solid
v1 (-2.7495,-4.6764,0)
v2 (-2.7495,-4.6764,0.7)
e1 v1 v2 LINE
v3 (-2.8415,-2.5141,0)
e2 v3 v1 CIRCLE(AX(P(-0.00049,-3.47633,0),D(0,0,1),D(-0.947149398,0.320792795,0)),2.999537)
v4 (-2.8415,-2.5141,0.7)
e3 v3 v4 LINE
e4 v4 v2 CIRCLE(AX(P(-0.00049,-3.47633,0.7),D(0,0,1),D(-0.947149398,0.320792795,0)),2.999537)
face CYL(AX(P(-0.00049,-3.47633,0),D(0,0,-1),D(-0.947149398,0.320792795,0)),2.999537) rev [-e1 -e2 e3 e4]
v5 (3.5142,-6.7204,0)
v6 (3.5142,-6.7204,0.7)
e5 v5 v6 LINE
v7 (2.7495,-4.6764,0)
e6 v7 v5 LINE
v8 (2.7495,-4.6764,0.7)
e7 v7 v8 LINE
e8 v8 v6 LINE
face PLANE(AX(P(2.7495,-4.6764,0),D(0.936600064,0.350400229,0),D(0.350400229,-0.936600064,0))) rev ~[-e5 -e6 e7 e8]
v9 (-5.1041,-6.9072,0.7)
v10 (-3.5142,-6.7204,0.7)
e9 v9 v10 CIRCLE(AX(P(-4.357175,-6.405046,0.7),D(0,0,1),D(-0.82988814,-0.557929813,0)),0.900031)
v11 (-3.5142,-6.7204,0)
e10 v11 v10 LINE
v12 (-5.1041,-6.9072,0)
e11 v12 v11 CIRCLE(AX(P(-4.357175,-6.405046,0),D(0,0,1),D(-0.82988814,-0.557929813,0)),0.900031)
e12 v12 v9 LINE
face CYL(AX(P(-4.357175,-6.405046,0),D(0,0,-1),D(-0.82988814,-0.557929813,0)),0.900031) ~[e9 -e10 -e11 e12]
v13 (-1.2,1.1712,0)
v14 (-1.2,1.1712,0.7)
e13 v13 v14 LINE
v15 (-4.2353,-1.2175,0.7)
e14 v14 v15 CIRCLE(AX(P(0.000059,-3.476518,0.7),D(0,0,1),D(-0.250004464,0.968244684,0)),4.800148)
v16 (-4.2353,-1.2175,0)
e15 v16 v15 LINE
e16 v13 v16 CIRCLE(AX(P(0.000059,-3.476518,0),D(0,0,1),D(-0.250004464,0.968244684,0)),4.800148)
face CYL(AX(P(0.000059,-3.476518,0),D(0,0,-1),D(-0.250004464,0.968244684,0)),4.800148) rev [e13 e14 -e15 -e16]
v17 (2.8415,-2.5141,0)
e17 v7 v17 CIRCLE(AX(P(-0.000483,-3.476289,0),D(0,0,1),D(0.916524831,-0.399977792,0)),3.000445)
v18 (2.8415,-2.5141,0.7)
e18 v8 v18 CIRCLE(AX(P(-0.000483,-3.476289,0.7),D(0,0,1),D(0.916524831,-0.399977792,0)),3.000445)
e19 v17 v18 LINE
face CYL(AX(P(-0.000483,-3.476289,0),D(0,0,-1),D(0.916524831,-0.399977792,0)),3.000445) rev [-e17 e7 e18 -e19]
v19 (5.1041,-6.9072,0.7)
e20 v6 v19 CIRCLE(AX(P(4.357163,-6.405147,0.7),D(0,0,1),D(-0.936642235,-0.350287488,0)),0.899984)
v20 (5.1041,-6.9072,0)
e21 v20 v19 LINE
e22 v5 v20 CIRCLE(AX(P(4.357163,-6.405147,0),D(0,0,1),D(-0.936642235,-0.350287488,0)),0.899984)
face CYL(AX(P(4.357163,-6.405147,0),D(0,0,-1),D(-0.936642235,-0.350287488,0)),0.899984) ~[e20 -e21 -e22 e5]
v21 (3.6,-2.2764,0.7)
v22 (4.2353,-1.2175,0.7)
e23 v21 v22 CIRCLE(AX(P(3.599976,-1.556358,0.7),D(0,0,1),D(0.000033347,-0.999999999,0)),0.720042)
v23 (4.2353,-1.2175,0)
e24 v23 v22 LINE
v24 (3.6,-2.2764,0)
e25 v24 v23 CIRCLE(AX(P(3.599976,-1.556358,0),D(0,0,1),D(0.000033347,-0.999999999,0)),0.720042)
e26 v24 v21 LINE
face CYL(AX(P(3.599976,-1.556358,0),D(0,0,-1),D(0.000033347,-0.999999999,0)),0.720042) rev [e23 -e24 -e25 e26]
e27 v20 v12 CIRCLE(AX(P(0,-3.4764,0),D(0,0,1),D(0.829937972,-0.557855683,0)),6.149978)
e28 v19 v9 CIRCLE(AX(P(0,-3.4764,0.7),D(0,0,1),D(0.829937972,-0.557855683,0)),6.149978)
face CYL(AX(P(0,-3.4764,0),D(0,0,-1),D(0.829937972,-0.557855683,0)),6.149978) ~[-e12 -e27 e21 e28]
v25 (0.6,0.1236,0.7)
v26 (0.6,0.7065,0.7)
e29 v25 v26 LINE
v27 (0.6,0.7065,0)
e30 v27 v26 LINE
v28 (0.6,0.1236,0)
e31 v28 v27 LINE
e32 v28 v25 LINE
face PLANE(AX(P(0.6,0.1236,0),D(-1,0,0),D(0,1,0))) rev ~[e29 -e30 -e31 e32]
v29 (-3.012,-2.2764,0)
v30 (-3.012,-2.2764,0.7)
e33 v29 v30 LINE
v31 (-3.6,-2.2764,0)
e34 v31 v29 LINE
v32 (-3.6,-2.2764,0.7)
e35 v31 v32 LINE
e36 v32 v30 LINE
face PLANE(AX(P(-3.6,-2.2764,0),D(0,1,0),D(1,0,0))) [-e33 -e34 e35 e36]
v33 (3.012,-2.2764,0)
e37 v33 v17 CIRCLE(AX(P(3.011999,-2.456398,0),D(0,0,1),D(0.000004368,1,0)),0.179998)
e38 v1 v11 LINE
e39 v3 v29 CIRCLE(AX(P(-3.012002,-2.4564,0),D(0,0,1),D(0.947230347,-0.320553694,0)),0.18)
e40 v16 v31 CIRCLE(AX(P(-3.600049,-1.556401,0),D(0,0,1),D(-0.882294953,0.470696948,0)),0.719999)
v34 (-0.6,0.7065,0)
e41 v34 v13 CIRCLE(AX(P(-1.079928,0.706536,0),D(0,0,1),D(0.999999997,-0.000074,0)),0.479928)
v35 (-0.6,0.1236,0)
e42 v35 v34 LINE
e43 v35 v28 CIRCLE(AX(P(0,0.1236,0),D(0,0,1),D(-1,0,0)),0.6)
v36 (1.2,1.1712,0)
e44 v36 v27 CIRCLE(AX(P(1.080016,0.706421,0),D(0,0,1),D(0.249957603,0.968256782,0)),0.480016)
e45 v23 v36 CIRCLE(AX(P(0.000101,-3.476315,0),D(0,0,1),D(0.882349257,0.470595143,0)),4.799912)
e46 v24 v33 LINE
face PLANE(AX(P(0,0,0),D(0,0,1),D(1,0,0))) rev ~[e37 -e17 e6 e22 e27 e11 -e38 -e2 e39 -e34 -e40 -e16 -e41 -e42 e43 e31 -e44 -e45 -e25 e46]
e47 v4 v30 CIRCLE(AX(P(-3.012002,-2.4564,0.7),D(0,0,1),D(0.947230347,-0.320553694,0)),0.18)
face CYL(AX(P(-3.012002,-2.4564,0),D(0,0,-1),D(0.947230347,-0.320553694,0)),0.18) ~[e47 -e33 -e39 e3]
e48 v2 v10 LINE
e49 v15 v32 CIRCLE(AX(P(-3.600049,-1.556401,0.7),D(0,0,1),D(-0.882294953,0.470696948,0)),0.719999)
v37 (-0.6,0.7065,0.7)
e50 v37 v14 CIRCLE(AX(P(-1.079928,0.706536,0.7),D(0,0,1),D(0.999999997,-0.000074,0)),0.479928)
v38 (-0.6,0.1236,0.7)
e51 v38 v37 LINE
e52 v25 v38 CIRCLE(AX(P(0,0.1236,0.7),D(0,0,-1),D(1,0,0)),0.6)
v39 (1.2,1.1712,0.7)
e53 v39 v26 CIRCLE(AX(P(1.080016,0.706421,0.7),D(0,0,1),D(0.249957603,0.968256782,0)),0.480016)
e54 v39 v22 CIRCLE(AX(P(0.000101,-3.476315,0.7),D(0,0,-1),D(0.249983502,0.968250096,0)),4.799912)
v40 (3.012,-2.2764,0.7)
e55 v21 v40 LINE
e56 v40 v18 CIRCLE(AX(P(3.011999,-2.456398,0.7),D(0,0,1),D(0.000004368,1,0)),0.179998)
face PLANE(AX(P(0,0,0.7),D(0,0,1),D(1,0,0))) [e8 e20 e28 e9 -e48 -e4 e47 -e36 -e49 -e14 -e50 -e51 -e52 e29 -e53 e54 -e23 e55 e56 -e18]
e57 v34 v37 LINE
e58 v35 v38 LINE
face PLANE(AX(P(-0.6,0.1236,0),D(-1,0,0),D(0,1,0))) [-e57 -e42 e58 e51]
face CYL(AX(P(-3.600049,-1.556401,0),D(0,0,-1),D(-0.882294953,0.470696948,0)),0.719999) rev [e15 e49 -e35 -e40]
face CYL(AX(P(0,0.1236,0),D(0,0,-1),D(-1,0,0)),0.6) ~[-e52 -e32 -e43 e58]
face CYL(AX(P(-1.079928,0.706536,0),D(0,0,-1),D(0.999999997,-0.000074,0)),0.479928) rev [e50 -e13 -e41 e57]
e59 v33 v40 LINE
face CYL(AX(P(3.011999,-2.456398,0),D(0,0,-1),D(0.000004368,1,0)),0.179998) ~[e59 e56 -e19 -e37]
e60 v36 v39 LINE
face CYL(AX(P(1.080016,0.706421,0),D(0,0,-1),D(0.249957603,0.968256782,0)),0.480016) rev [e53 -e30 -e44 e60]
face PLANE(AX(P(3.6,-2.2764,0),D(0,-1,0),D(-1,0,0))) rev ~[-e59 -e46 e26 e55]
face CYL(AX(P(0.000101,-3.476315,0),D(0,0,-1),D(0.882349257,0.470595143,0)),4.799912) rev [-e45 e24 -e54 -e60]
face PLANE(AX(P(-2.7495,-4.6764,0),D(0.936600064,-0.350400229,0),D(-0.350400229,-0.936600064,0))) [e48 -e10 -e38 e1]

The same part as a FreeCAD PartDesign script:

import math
import FreeCAD as App
import Part
import Sketcher

V = App.Vector

doc = App.newDocument("Part")
params = doc.addObject("Spreadsheet::Sheet", "Params")
for row, (alias, value) in enumerate([
    ("sketch1_radius", "3 mm"),
    ("sketch1_radius2", "3 mm"),
    ("sketch1_radius3", "0.6 mm"),
    ("sketch1_radius4", "4.8 mm"),
    ("sketch1_radius5", "0.9 mm"),
    ("pad1_length", "0.7 mm"),
], start=1):
    params.set(f"A{row}", alias)
    params.set(f"B{row}", "=" + value)
    params.setAlias(f"B{row}", alias)

body = doc.addObject("PartDesign::Body", "Body")

# Sketch on XY plane
sketch1 = body.newObject("Sketcher::SketchObject", "Sketch")
sketch1.AttachmentSupport = (doc.getObject("XY_Plane"), [""])
sketch1.MapMode = "FlatFace"
sketch1.addGeometry([
    Part.ArcOfCircle(Part.Circle(V(0, 0.1236, 0), V(0, 0, 1), 0.6), math.radians(180), math.radians(360)),  # 0
    Part.LineSegment(V(0.6, 0.1236, 0), V(0.6, 0.7065, 0)),  # 1
    Part.ArcOfCircle(Part.Circle(V(1.08, 0.7065, 0), V(0, 0, 1), 0.479944), math.radians(75.520757), math.radians(180)),  # 2
    Part.ArcOfCircle(Part.Circle(V(0, -3.4764, 0), V(0, 0, 1), 4.800019), math.radians(28.073259), math.radians(75.522547)),  # 3
    Part.ArcOfCircle(Part.Circle(V(3.6, -1.5564, 0), V(0, 0, 1), 0.72), math.radians(-90), math.radians(28.077636)),  # 4
    Part.LineSegment(V(3.6, -2.2764, 0), V(3.012, -2.2764, 0)),  # 5
    Part.ArcOfCircle(Part.Circle(V(3.012, -2.4564, 0), V(0, 0, 1), 0.18), math.radians(90), math.radians(198.696663)),  # 6
    Part.ArcOfCircle(Part.Circle(V(0, -3.4764, 0), V(0, 0, 1), 3.000024), math.radians(-23.578525), math.radians(18.709141)),  # 7
    Part.LineSegment(V(2.7495, -4.6764, 0), V(3.5142, -6.7204, 0)),  # 8
    Part.ArcOfCircle(Part.Circle(V(4.3572, -6.4051, 0), V(0, 0, 1), 0.900035), math.radians(-159.49313), math.radians(-33.910781)),  # 9
    Part.ArcOfCircle(Part.Circle(V(0, -3.4764, 0), V(0, 0, 1), 6.149978), math.radians(-33.907633), math.radians(213.907633)),  # 10
    Part.ArcOfCircle(Part.Circle(V(-4.3572, -6.4051, 0), V(0, 0, 1), 0.89998), math.radians(-146.089219), math.radians(-20.50687)),  # 11
    Part.LineSegment(V(-3.5142, -6.7204, 0), V(-2.7495, -4.6764, 0)),  # 12
    Part.ArcOfCircle(Part.Circle(V(0, -3.4764, 0), V(0, 0, 1), 2.999958), math.radians(161.290859), math.radians(203.578525)),  # 13
    Part.ArcOfCircle(Part.Circle(V(-3.012, -2.4564, 0), V(0, 0, 1), 0.179999), math.radians(-18.696663), math.radians(90)),  # 14
    Part.LineSegment(V(-3.012, -2.2764, 0), V(-3.6, -2.2764, 0)),  # 15
    Part.ArcOfCircle(Part.Circle(V(-3.6, -1.5564, 0), V(0, 0, 1), 0.720041), math.radians(151.922364), math.radians(270)),  # 16
    Part.ArcOfCircle(Part.Circle(V(0, -3.4764, 0), V(0, 0, 1), 4.800041), math.radians(104.477453), math.radians(151.926741)),  # 17
    Part.ArcOfCircle(Part.Circle(V(-1.08, 0.7065, 0), V(0, 0, 1), 0.48), math.radians(0), math.radians(104.479243)),  # 18
    Part.LineSegment(V(-0.6, 0.7065, 0), V(-0.6, 0.1236, 0)),  # 19
], False)
sketch1.addConstraint([
    Sketcher.Constraint("Coincident", 0, 2, 1, 1),
    Sketcher.Constraint("Coincident", 1, 2, 2, 2),
    Sketcher.Constraint("Coincident", 2, 1, 3, 2),
    Sketcher.Constraint("Coincident", 3, 1, 4, 2),
    Sketcher.Constraint("Coincident", 4, 1, 5, 1),
    Sketcher.Constraint("Coincident", 5, 2, 6, 1),
    Sketcher.Constraint("Coincident", 6, 2, 7, 2),
    Sketcher.Constraint("Coincident", 7, 1, 8, 1),
    Sketcher.Constraint("Coincident", 8, 2, 9, 1),
    Sketcher.Constraint("Coincident", 9, 2, 10, 1),
    Sketcher.Constraint("Coincident", 10, 2, 11, 1),
    Sketcher.Constraint("Coincident", 11, 2, 12, 1),
    Sketcher.Constraint("Coincident", 12, 2, 13, 2),
    Sketcher.Constraint("Coincident", 13, 1, 14, 1),
    Sketcher.Constraint("Coincident", 14, 2, 15, 1),
    Sketcher.Constraint("Coincident", 15, 2, 16, 2),
    Sketcher.Constraint("Coincident", 16, 1, 17, 2),
    Sketcher.Constraint("Coincident", 17, 1, 18, 2),
    Sketcher.Constraint("Coincident", 18, 1, 19, 1),
    Sketcher.Constraint("Coincident", 19, 2, 0, 1),
    Sketcher.Constraint("Vertical", 1),
    Sketcher.Constraint("Horizontal", 5),
    Sketcher.Constraint("Horizontal", 15),
    Sketcher.Constraint("Vertical", 19),
    Sketcher.Constraint("Coincident", 7, 3, 3, 3),
    Sketcher.Constraint("Coincident", 10, 3, 3, 3),
    Sketcher.Constraint("Coincident", 13, 3, 3, 3),
    Sketcher.Constraint("Coincident", 17, 3, 3, 3),
    Sketcher.Constraint("PointOnObject", 0, 3, -2),
    Sketcher.Constraint("PointOnObject", 3, 3, -2),
    Sketcher.Constraint("Radius", 7, 3.0),
    Sketcher.Constraint("Radius", 13, 3.0),
    Sketcher.Constraint("Radius", 0, 0.6),
    Sketcher.Constraint("Radius", 3, 4.8),
    Sketcher.Constraint("Radius", 9, 0.9),
    Sketcher.Constraint("Radius", 11, 0.9),
    Sketcher.Constraint("Radius", 17, 4.8),
    Sketcher.Constraint("Radius", 2, 0.48),
    Sketcher.Constraint("Radius", 4, 0.72),
    Sketcher.Constraint("Radius", 6, 0.18),
    Sketcher.Constraint("Radius", 10, 6.15),
    Sketcher.Constraint("Radius", 14, 0.18),
    Sketcher.Constraint("Radius", 16, 0.72),
    Sketcher.Constraint("Radius", 18, 0.48),
    Sketcher.Constraint("DistanceX", 0, 2, 4, 3, 3.0),
    Sketcher.Constraint("DistanceX", -1, 1, 2, 1, 1.2),
    Sketcher.Constraint("DistanceX", 17, 1, -1, 1, 1.2),
    Sketcher.Constraint("DistanceY", 12, 2, 3, 3, 1.2),
    Sketcher.Constraint("DistanceY", 3, 3, 14, 2, 1.2),
    Sketcher.Constraint("DistanceX", -1, 1, 4, 1, 3.6),
    Sketcher.Constraint("DistanceX", 15, 2, -1, 1, 3.6),
    Sketcher.Constraint("DistanceY", 3, 3, 0, 3, 3.6),
    Sketcher.Constraint("DistanceY", 7, 1, 5, 2, 2.4),
    Sketcher.Constraint("DistanceX", 5, 2, 5, 1, 0.588),
    Sketcher.Constraint("DistanceX", 15, 2, 15, 1, 0.588),
    Sketcher.Constraint("DistanceY", 1, 1, 1, 2, 0.583),
    Sketcher.Constraint("DistanceY", 19, 2, 19, 1, 0.583),
    Sketcher.Constraint("DistanceY", 4, 3, 0, 2, 1.68),
    Sketcher.Constraint("DistanceX", 8, 2, 9, 2, 1.59),
    Sketcher.Constraint("DistanceY", 9, 3, -1, 1, 6.405),
    Sketcher.Constraint("DistanceY", 11, 3, -1, 1, 6.405),
    Sketcher.Constraint("DistanceY", 6, 2, -1, 1, 2.514),
    Sketcher.Constraint("DistanceX", 10, 2, -1, 1, 5.104),
    Sketcher.Constraint("DistanceY", 4, 3, 3, 1, 0.339),
    Sketcher.Constraint("DistanceX", 7, 1, 6, 2, 0.092),
    Sketcher.Constraint("DistanceX", 8, 2, 9, 3, 0.843),
    Sketcher.Constraint("DistanceX", 11, 3, 11, 2, 0.843),
    Sketcher.Constraint("DistanceX", 13, 1, 12, 2, 0.092),
    Sketcher.Constraint("DistanceY", 16, 3, 16, 1, 0.339),
    Sketcher.Constraint("DistanceY", 0, 3, 18, 1, 0.583),
])
sketch1.setExpression("Constraints[30]", "Params.sketch1_radius")
sketch1.setExpression("Constraints[31]", "Params.sketch1_radius2")
sketch1.setExpression("Constraints[32]", "Params.sketch1_radius3")
sketch1.setExpression("Constraints[33]", "Params.sketch1_radius4")
sketch1.setExpression("Constraints[34]", "Params.sketch1_radius5")
pad1 = body.newObject("PartDesign::Pad", "Pad")
pad1.Profile = sketch1
pad1.setExpression("Length", "Params.pad1_length")

doc.recompute()
